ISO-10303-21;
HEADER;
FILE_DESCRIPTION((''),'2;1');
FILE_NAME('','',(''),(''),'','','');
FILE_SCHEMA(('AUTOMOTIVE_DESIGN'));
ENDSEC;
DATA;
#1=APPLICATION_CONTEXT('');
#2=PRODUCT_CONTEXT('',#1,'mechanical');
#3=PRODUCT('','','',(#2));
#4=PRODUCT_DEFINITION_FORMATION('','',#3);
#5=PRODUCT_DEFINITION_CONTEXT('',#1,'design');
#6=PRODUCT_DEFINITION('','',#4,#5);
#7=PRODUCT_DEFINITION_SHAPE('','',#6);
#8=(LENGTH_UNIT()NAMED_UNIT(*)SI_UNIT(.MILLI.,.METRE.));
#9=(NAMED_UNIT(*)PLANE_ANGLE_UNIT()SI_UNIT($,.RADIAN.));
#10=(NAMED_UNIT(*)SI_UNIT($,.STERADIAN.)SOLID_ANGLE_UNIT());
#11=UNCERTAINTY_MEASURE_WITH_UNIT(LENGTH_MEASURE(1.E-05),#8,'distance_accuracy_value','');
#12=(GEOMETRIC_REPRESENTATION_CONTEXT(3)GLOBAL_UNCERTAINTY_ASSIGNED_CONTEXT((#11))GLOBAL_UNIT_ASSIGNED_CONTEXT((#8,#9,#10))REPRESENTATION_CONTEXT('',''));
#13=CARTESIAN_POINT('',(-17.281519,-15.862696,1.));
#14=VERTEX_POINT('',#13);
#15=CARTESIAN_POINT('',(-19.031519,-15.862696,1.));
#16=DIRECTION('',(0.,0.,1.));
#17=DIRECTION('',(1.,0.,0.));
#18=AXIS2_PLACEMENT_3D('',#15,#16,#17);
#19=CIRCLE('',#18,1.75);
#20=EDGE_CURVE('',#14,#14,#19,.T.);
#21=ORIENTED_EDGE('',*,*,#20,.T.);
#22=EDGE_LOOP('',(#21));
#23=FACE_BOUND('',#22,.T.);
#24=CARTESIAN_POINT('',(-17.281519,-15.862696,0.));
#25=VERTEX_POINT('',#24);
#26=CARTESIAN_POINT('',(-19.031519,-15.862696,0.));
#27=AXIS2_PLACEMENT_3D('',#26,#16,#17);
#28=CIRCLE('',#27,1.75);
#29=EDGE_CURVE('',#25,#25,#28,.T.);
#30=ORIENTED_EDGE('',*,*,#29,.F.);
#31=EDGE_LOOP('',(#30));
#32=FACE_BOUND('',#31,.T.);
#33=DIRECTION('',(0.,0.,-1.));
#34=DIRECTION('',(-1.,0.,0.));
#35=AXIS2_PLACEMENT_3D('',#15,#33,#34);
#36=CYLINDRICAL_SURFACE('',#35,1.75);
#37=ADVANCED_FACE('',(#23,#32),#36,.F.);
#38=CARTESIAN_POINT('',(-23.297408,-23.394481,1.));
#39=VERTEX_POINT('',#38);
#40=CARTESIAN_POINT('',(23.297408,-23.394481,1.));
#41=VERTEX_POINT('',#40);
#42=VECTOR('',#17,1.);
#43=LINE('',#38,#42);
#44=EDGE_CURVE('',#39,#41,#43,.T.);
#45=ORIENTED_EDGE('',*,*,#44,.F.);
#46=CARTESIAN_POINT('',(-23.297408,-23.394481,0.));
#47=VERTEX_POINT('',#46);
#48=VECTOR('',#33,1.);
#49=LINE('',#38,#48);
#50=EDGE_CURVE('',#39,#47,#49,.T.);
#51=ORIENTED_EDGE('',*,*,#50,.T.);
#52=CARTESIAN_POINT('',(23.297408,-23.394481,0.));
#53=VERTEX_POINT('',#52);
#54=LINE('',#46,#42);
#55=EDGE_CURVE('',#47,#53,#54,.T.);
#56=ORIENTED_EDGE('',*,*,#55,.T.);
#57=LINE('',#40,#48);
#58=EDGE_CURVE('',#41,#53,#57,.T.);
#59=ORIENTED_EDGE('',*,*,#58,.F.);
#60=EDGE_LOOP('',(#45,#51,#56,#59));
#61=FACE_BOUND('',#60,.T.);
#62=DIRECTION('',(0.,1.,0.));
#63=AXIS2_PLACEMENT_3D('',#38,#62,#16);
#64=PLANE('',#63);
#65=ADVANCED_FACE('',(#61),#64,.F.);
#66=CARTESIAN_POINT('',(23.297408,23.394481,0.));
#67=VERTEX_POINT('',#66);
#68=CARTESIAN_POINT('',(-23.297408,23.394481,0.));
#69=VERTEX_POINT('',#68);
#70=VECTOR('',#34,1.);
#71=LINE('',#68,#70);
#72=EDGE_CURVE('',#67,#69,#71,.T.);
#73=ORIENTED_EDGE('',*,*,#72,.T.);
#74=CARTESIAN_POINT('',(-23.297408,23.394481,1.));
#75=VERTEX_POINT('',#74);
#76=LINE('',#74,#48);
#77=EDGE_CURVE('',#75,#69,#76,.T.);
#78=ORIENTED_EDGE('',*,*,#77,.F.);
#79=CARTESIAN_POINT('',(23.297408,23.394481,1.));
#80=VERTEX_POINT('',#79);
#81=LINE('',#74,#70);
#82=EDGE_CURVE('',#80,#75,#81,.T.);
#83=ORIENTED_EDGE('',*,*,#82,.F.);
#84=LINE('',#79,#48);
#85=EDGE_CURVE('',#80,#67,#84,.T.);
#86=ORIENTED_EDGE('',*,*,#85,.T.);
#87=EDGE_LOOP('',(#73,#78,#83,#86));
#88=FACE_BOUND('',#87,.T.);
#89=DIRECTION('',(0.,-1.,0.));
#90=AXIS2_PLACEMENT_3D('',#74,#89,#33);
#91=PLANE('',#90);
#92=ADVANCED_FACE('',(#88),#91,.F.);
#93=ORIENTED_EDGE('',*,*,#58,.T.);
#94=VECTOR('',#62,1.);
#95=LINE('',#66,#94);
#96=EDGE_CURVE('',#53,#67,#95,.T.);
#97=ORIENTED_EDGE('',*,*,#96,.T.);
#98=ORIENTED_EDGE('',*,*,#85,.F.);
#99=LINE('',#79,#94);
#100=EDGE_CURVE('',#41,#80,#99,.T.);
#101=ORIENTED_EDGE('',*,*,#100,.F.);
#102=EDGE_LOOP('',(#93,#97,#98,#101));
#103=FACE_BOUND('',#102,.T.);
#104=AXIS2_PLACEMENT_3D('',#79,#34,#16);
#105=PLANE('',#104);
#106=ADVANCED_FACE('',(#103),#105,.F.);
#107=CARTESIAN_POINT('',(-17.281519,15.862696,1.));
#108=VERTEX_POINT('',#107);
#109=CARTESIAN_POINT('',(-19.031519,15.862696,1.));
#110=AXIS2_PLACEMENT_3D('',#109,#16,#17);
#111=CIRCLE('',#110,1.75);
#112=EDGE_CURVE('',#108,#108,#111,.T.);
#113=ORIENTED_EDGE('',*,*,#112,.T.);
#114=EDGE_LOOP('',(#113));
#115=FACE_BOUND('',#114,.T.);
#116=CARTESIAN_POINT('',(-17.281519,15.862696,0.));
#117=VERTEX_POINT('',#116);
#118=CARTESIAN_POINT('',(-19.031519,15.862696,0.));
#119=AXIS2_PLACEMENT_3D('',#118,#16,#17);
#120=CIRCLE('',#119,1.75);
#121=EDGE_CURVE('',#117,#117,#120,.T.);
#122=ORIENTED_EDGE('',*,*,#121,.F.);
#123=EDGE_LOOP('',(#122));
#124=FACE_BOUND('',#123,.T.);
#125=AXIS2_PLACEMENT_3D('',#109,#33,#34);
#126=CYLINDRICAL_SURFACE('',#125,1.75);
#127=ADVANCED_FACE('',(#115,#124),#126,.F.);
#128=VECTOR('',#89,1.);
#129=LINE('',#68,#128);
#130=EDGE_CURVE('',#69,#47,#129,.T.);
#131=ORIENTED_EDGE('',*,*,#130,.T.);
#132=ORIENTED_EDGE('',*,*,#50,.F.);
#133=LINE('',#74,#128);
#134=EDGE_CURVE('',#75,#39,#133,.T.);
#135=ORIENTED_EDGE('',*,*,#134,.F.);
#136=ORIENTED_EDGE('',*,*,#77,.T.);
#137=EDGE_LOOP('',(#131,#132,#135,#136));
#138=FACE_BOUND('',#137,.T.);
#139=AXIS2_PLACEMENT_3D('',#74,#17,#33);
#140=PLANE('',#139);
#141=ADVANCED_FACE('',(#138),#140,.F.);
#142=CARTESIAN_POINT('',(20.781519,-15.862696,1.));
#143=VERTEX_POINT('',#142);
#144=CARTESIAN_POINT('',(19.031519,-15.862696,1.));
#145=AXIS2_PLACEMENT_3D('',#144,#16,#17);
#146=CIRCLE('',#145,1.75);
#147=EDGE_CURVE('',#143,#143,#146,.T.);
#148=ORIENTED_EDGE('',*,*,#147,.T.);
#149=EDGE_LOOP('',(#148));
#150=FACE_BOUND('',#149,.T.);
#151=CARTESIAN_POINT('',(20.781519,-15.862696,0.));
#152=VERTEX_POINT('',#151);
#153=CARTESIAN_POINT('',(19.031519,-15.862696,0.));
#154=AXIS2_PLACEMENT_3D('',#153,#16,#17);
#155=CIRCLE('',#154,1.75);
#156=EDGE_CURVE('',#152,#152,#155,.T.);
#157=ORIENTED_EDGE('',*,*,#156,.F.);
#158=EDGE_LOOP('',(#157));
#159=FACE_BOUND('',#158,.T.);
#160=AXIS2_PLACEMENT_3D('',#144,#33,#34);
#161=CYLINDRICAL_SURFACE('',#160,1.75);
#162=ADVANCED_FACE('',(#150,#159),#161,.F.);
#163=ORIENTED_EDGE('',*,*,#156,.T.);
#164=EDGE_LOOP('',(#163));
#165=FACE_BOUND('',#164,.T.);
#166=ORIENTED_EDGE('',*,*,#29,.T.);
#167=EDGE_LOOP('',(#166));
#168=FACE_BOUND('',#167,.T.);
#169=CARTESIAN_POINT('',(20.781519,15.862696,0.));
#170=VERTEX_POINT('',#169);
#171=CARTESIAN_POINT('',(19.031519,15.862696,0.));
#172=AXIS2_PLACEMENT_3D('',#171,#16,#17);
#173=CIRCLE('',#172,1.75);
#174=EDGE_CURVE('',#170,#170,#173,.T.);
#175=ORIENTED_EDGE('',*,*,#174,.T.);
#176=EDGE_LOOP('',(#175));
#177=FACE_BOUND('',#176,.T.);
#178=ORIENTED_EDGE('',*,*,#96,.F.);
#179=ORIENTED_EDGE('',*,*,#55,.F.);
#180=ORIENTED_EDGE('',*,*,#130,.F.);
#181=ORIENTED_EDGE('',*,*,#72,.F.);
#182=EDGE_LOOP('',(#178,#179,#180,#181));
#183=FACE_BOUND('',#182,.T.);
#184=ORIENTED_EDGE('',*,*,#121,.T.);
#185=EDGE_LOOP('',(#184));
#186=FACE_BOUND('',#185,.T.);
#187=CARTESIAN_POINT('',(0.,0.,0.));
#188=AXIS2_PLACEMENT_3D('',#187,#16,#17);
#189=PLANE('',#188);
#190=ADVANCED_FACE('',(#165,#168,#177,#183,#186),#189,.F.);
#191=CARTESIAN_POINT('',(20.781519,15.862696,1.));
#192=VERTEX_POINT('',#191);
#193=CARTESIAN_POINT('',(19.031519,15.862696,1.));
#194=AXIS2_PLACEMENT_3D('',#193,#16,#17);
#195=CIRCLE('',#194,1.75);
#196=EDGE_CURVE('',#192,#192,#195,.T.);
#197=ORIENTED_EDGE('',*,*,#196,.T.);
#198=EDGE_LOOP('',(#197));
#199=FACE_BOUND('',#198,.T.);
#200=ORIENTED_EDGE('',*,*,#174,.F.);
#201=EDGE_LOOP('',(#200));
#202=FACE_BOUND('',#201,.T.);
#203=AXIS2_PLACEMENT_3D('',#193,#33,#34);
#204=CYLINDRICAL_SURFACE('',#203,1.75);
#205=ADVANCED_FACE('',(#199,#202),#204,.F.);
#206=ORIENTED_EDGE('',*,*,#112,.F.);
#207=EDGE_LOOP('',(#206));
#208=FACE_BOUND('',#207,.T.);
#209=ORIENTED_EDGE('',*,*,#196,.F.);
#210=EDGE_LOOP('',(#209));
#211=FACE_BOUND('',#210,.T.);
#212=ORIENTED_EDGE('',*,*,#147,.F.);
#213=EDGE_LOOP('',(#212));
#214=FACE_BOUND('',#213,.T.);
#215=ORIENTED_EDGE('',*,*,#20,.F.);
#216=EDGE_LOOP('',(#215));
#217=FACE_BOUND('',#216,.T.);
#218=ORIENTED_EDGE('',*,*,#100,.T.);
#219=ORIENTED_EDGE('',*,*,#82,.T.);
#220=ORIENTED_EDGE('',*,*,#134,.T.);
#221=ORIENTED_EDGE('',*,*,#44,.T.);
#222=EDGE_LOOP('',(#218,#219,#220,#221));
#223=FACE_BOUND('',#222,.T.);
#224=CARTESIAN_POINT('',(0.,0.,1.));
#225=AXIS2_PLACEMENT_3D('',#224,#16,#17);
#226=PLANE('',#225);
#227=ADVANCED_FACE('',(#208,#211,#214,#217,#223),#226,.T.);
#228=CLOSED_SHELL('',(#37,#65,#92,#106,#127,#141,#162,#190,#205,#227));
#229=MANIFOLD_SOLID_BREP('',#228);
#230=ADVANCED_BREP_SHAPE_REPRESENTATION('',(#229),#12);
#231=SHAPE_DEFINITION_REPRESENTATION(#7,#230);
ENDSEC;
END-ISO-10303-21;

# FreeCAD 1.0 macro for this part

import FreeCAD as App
import Part
import Sketcher

V = App.Vector

doc = App.newDocument("Part")
body = doc.addObject("PartDesign::Body", "Body")

sketch1 = body.newObject("Sketcher::SketchObject", "Sketch")
sketch1.AttachmentSupport = (doc.getObject("XY_Plane"), [""])
sketch1.MapMode = "FlatFace"
sketch1.addGeometry([
    Part.LineSegment(V(-23.3, 23.4, 0), V(-23.3, -23.4, 0)),
    Part.LineSegment(V(-23.3, -23.4, 0), V(23.3, -23.4, 0)),
    Part.LineSegment(V(23.3, -23.4, 0), V(23.3, 23.4, 0)),
    Part.LineSegment(V(23.3, 23.4, 0), V(-23.3, 23.4, 0)),
    Part.Circle(V(-19, -15.9, 0), V(0, 0, 1), 1.8),
    Part.Circle(V(19, -15.9, 0), V(0, 0, 1), 1.8),
    Part.Circle(V(-19, 15.9, 0), V(0, 0, 1), 1.8),
    Part.Circle(V(19, 15.9, 0), V(0, 0, 1), 1.8),
], False)
sketch1.addConstraint([
    Sketcher.Constraint("Coincident", 0, 2, 1, 1),
    Sketcher.Constraint("Coincident", 1, 2, 2, 1),
    Sketcher.Constraint("Coincident", 2, 2, 3, 1),
    Sketcher.Constraint("Coincident", 3, 2, 0, 1),
    Sketcher.Constraint("Vertical", 0),
    Sketcher.Constraint("Horizontal", 1),
    Sketcher.Constraint("Vertical", 2),
    Sketcher.Constraint("Horizontal", 3),
    Sketcher.Constraint("Equal", 4, 5),
    Sketcher.Constraint("Equal", 5, 6),
    Sketcher.Constraint("Equal", 6, 7),
    Sketcher.Constraint("Symmetric", 5, 3, 6, 3, -1, 1),
    Sketcher.Constraint("Symmetric", 4, 3, 7, 3, -1, 1),
    Sketcher.Constraint("Symmetric", 0, 2, 2, 2, -1, 1),
    Sketcher.Constraint("Symmetric", 4, 3, 5, 3, -2),
    Sketcher.Constraint("Diameter", 4, 3.5),
    Sketcher.Constraint("DistanceY", 0, 2, 0, 1, 46.788962),
    Sketcher.Constraint("DistanceX", 1, 1, 1, 2, 46.594816),
    Sketcher.Constraint("DistanceX", 4, 3, -1, 1, 19.031519),
    Sketcher.Constraint("DistanceY", 4, 3, 6, 3, 31.725391),
])
pad1 = body.newObject("PartDesign::Pad", "Pad")
pad1.Profile = sketch1
pad1.Length = 1

doc.recompute()
